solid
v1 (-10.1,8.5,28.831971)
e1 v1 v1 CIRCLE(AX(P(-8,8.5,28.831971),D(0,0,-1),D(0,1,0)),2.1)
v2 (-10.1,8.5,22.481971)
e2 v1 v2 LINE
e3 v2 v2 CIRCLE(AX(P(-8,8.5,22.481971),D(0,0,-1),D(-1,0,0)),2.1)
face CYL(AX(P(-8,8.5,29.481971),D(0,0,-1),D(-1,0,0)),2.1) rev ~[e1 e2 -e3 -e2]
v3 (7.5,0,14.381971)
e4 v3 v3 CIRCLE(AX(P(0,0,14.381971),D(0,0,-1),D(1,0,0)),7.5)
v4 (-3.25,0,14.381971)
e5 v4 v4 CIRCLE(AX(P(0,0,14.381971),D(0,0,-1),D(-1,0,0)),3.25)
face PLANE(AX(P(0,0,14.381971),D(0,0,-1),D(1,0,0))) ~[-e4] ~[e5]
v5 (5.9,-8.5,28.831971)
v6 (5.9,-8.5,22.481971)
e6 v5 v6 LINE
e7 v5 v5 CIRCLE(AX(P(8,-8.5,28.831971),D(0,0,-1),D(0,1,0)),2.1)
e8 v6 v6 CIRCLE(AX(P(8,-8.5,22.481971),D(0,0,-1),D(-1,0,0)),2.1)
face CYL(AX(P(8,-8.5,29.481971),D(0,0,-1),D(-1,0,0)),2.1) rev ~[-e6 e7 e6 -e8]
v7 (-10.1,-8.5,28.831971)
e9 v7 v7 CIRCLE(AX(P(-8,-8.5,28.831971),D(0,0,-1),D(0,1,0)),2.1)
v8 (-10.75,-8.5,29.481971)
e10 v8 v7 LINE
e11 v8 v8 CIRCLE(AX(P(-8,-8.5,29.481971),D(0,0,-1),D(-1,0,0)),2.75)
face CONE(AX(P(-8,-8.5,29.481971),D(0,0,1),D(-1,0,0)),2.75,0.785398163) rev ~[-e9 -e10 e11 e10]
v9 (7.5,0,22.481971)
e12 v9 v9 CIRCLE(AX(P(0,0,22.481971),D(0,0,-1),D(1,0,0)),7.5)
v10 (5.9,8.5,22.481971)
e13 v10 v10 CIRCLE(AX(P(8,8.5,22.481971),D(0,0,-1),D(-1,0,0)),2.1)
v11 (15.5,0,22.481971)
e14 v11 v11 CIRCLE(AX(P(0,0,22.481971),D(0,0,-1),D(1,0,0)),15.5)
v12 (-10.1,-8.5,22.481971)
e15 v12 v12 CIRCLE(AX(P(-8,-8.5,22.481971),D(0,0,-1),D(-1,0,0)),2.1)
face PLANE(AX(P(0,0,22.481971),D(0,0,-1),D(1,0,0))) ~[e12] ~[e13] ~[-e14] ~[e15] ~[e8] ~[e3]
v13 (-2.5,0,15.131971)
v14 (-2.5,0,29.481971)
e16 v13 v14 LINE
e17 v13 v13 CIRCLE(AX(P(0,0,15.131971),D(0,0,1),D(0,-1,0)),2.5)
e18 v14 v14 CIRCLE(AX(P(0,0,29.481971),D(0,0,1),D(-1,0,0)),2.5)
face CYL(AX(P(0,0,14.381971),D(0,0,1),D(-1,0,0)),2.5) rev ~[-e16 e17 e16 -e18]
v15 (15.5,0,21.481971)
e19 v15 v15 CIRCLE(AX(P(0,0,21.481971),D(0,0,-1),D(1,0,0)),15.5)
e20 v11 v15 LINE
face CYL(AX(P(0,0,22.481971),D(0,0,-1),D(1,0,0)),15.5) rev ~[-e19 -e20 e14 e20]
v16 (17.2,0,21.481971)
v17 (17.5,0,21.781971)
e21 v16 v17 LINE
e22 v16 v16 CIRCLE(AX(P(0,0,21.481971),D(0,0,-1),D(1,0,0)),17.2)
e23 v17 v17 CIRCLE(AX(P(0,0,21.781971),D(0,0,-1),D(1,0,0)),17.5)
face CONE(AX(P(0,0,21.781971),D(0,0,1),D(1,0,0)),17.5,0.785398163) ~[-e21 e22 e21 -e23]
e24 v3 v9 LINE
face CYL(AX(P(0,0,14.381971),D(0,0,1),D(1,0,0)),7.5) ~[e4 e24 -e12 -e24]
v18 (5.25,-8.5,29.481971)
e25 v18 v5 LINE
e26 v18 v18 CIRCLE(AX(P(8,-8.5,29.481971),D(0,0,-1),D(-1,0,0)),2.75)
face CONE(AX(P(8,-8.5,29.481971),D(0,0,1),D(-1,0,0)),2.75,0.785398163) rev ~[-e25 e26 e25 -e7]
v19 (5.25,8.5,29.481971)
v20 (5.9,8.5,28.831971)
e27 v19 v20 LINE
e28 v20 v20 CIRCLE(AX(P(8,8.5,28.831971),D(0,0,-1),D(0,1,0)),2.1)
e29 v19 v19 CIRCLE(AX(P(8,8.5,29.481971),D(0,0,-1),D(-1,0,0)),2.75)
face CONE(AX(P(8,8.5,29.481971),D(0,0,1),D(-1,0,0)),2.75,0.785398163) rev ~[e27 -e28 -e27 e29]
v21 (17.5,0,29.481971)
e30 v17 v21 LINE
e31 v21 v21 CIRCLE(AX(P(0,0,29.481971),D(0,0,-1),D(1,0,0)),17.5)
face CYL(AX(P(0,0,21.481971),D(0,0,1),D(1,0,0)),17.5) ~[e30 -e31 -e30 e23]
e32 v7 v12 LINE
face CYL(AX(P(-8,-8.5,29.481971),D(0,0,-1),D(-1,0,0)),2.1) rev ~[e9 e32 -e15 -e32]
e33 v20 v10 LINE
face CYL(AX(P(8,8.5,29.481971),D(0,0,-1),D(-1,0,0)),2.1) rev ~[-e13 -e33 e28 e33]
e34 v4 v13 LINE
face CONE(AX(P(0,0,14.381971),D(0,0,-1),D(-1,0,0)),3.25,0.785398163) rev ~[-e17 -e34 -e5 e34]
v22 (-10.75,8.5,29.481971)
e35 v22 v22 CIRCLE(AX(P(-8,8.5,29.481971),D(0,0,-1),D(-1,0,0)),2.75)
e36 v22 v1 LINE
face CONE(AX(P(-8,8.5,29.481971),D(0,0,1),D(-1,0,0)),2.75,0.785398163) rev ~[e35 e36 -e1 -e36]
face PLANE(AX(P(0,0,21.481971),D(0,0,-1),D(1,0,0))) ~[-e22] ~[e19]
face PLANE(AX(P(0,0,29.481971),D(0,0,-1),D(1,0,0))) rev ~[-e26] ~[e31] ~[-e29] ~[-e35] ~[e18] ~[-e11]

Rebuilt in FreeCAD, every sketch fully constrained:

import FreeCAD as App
import Part
import Sketcher
Q = App.Units.Quantity


def edges_at(feature, points):
    """Names of the edges that pass closest to the given points."""
    edges = feature.Shape.Edges
    near = lambda p: min(range(len(edges)), key=lambda i: edges[i].distToShape(Part.Vertex(*p))[0])
    return sorted({f"Edge{near(p) + 1}" for p in points})

doc = App.newDocument("Part")
body = doc.addObject("PartDesign::Body", "Body")

# Sketch on XZ plane
sketch1 = doc.addObject("Sketcher::SketchObject", "Sketch")
body.addObject(sketch1)
sketch1.AttachmentSupport = (doc.XZ_Plane, [""])
sketch1.MapMode = "FlatFace"
sketch1.addGeometry([
    Part.LineSegment(App.Vector(17.5, 29.5, 0), App.Vector(0, 29.5, 0)),  # 0
    Part.LineSegment(App.Vector(0, 29.5, 0), App.Vector(0, 14.4, 0)),  # 1
    Part.LineSegment(App.Vector(0, 14.4, 0), App.Vector(7.5, 14.4, 0)),  # 2
    Part.LineSegment(App.Vector(7.5, 14.4, 0), App.Vector(7.5, 22.5, 0)),  # 3
    Part.LineSegment(App.Vector(7.5, 22.5, 0), App.Vector(15.5, 22.5, 0)),  # 4
    Part.LineSegment(App.Vector(15.5, 22.5, 0), App.Vector(15.5, 21.5, 0)),  # 5
    Part.LineSegment(App.Vector(15.5, 21.5, 0), App.Vector(17.5, 21.5, 0)),  # 6
    Part.LineSegment(App.Vector(17.5, 21.5, 0), App.Vector(17.5, 29.5, 0)),  # 7
], False)
sketch1.addConstraint([
    Sketcher.Constraint("Coincident", 0, 2, 1, 1),
    Sketcher.Constraint("Coincident", 1, 2, 2, 1),
    Sketcher.Constraint("Coincident", 2, 2, 3, 1),
    Sketcher.Constraint("Coincident", 3, 2, 4, 1),
    Sketcher.Constraint("Coincident", 4, 2, 5, 1),
    Sketcher.Constraint("Coincident", 5, 2, 6, 1),
    Sketcher.Constraint("Coincident", 6, 2, 7, 1),
    Sketcher.Constraint("Coincident", 7, 2, 0, 1),
    Sketcher.Constraint("Horizontal", 0),
    Sketcher.Constraint("Vertical", 1),
    Sketcher.Constraint("Horizontal", 2),
    Sketcher.Constraint("Vertical", 3),
    Sketcher.Constraint("Horizontal", 4),
    Sketcher.Constraint("Vertical", 5),
    Sketcher.Constraint("Horizontal", 6),
    Sketcher.Constraint("Vertical", 7),
    Sketcher.Constraint("PointOnObject", 0, 2, -2),
    Sketcher.Constraint("Equal", 4, 7),
    Sketcher.Constraint("DistanceX", 4, 1, 4, 2, Q("8 mm")),
    Sketcher.Constraint("DistanceX", 6, 1, 6, 2, Q("2 mm")),
    Sketcher.Constraint("DistanceY", 5, 2, 5, 1, Q("1 mm")),
    Sketcher.Constraint("DistanceX", 0, 2, 0, 1, Q("17.5 mm")),
    Sketcher.Constraint("DistanceY", 1, 2, 1, 1, Q("15.1 mm")),
    Sketcher.Constraint("DistanceY", -1, 1, 0, 2, Q("29.481971 mm")),
])
revolution = doc.addObject("PartDesign::Revolution", "Revolution")
body.addObject(revolution)
revolution.Profile = sketch1
revolution.ReferenceAxis = (sketch1, ["V_Axis"])
revolution.Angle = 360

# Sketch on XY plane
sketch2 = doc.addObject("Sketcher::SketchObject", "Sketch001")
body.addObject(sketch2)
sketch2.AttachmentSupport = (doc.XY_Plane, [""])
sketch2.MapMode = "FlatFace"
sketch2.AttachmentOffset = App.Placement(App.Vector(0, 0, 29.481971), App.Rotation())
sketch2.addGeometry([
    Part.Circle(App.Vector(-8, 8.5, 0), App.Vector(0, 0, 1), 2.1),
    Part.Circle(App.Vector(8, 8.5, 0), App.Vector(0, 0, 1), 2.1),
    Part.Circle(App.Vector(8, -8.5, 0), App.Vector(0, 0, 1), 2.1),
    Part.Circle(App.Vector(-8, -8.5, 0), App.Vector(0, 0, 1), 2.1),
], False)
sketch2.addConstraint([
    Sketcher.Constraint("Equal", 0, 1),
    Sketcher.Constraint("Equal", 1, 2),
    Sketcher.Constraint("Equal", 2, 3),
    Sketcher.Constraint("Symmetric", 0, 3, 2, 3, -1, 1),
    Sketcher.Constraint("Symmetric", 1, 3, 3, 3, -1, 1),
    Sketcher.Constraint("Symmetric", 0, 3, 1, 3, -2),
    Sketcher.Constraint("Diameter", 0, Q("4.2 mm")),
    Sketcher.Constraint("DistanceX", 0, 3, -1, 1, Q("8 mm")),
    Sketcher.Constraint("DistanceY", 2, 3, 1, 3, Q("17 mm")),
])
doc.recompute()
hole = doc.addObject("PartDesign::Hole", "Hole")
body.addObject(hole)
hole.Profile = sketch2
hole.ThreadType = "None"
hole.Diameter = 4.2
hole.DepthType = "ThroughAll"
hole.HoleCutType = "Countersink"
hole.HoleCutDiameter = 5.5
hole.HoleCutCountersinkAngle = 90

# Sketch on XY plane
sketch3 = doc.addObject("Sketcher::SketchObject", "Sketch002")
body.addObject(sketch3)
sketch3.AttachmentSupport = (doc.XY_Plane, [""])
sketch3.MapMode = "FlatFace"
sketch3.AttachmentOffset = App.Placement(App.Vector(0, 0, 14.381971), App.Rotation())
sketch3.addGeometry(Part.Circle(App.Vector(0, 0, 0), App.Vector(0, 0, 1), 2.5), False)
sketch3.addConstraint([
    Sketcher.Constraint("Coincident", 0, 3, -1, 1),
    Sketcher.Constraint("Diameter", 0, Q("5 mm")),
])
doc.recompute()
hole2 = doc.addObject("PartDesign::Hole", "Hole001")
body.addObject(hole2)
hole2.Profile = sketch3
hole2.ThreadType = "None"
hole2.Diameter = 5
hole2.DepthType = "ThroughAll"
hole2.HoleCutType = "Countersink"
hole2.HoleCutDiameter = 6.5
hole2.HoleCutCountersinkAngle = 90
hole2.Reversed = True
doc.recompute()

chamfer = doc.addObject("PartDesign::Chamfer", "Chamfer")
body.addObject(chamfer)
chamfer.Base = (hole2, edges_at(hole2, [(-17.5, 0, 21.482)]))
chamfer.Size = 0.3

doc.recompute()
